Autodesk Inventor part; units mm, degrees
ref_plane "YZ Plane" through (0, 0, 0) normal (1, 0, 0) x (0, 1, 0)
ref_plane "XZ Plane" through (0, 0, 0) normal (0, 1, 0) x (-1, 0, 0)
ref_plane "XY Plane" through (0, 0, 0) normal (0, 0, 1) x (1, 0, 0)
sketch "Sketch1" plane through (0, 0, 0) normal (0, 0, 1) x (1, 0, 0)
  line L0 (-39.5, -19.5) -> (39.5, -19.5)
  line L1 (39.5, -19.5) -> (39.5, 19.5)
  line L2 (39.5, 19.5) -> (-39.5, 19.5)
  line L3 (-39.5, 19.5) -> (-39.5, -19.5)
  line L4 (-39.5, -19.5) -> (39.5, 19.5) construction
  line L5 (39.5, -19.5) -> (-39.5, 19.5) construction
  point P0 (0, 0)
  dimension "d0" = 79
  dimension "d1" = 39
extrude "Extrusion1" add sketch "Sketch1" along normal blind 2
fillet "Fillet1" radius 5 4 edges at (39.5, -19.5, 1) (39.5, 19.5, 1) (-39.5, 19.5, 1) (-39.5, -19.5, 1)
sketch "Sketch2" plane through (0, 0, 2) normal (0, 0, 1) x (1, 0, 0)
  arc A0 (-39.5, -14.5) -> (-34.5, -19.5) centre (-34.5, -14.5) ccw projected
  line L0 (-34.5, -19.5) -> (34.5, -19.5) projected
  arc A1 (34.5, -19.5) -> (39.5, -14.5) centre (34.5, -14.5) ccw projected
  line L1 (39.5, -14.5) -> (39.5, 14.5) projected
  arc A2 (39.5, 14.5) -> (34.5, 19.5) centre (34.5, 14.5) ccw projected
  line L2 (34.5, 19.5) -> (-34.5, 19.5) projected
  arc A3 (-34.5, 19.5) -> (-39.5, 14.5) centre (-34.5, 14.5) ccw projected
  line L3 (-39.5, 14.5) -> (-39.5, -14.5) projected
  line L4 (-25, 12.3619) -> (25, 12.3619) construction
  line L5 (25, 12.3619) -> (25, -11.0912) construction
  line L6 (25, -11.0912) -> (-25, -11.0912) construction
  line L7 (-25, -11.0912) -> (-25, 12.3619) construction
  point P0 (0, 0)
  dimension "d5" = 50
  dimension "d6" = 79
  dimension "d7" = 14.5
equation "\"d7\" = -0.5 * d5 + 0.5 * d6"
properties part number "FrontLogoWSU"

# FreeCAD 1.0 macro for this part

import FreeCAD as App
import Part
import Sketcher
Q = App.Units.Quantity


def edges_at(feature, points):
    """Names of the edges that pass closest to the given points."""
    edges = feature.Shape.Edges
    near = lambda p: min(range(len(edges)), key=lambda i: edges[i].distToShape(Part.Vertex(*p))[0])
    return sorted({f"Edge{near(p) + 1}" for p in points})

doc = App.newDocument("Part")
body = doc.addObject("PartDesign::Body", "Body")

# Sketch on XY plane
sketch1 = doc.addObject("Sketcher::SketchObject", "Sketch")
body.addObject(sketch1)
sketch1.AttachmentSupport = (doc.XY_Plane, [""])
sketch1.MapMode = "FlatFace"
sketch1.addGeometry(Part.LineSegment(App.Vector(-39.5, 19.5, 0), App.Vector(-39.5, -19.5, 0)), False)
sketch1.addGeometry(Part.LineSegment(App.Vector(-39.5, -19.5, 0), App.Vector(39.5, -19.5, 0)), False)
sketch1.addGeometry(Part.LineSegment(App.Vector(39.5, -19.5, 0), App.Vector(39.5, 19.5, 0)), False)
sketch1.addGeometry(Part.LineSegment(App.Vector(39.5, 19.5, 0), App.Vector(-39.5, 19.5, 0)), False)
sketch1.addConstraint(Sketcher.Constraint("Coincident", 0, 2, 1, 1))
sketch1.addConstraint(Sketcher.Constraint("Coincident", 1, 2, 2, 1))
sketch1.addConstraint(Sketcher.Constraint("Coincident", 2, 2, 3, 1))
sketch1.addConstraint(Sketcher.Constraint("Coincident", 3, 2, 0, 1))
sketch1.addConstraint(Sketcher.Constraint("Vertical", 0))
sketch1.addConstraint(Sketcher.Constraint("Horizontal", 1))
sketch1.addConstraint(Sketcher.Constraint("Vertical", 2))
sketch1.addConstraint(Sketcher.Constraint("Horizontal", 3))
sketch1.addConstraint(Sketcher.Constraint("Symmetric", 0, 2, 2, 2, -1, 1))
sketch1.addConstraint(Sketcher.Constraint("DistanceX", 1, 1, 1, 2, Q("79 mm")))
sketch1.addConstraint(Sketcher.Constraint("DistanceY", 0, 2, 0, 1, Q("39 mm")))
pad1 = doc.addObject("PartDesign::Pad", "Pad")
body.addObject(pad1)
pad1.Profile = sketch1
pad1.Length = 2
doc.recompute()

fillet = doc.addObject("PartDesign::Fillet", "Fillet")
body.addObject(fillet)
fillet.Base = (pad1, edges_at(pad1, [
    (39.5, -19.5, 1),
    (39.5, 19.5, 1),
    (-39.5, 19.5, 1),
    (-39.5, -19.5, 1),
]))
fillet.Radius = 5

doc.recompute()
